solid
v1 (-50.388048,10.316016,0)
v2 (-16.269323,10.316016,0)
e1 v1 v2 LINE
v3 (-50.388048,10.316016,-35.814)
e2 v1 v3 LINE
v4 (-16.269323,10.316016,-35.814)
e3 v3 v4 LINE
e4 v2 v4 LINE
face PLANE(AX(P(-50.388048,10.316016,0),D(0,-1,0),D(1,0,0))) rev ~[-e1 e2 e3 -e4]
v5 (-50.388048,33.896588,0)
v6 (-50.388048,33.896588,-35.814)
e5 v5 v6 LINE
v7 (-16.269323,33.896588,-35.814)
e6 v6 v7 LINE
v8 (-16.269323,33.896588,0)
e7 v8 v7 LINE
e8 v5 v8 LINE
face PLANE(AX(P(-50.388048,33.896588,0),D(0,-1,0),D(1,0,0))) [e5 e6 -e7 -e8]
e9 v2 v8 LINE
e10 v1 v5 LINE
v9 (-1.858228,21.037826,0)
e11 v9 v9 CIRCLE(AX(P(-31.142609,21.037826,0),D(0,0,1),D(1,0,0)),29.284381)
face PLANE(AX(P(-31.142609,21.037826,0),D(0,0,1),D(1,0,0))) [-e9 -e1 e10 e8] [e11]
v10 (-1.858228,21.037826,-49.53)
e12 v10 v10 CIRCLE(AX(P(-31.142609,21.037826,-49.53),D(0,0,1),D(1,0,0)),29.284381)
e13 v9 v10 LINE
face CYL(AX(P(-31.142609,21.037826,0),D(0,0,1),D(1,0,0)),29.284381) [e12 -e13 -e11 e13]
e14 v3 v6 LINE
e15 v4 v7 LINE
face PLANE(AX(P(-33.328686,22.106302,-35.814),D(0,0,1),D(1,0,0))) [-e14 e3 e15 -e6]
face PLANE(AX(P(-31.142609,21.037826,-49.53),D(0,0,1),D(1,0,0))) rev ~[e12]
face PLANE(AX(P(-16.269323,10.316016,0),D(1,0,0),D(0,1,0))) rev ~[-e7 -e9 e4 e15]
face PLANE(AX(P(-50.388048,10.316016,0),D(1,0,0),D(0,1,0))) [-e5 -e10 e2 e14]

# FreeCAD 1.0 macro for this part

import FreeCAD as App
import Part
import Sketcher

V = App.Vector
Q = App.Units.Quantity


def add_polygon(sketch, points):
    """Adds a closed chain of lines whose ends are joined by coincident constraints."""
    first, n = sketch.GeometryCount, len(points)
    for a, b in zip(points, points[1:] + points[:1]):
        sketch.addGeometry(Part.LineSegment(App.Vector(*a, 0), App.Vector(*b, 0)), False)
    for i in range(n):
        sketch.addConstraint(Sketcher.Constraint("Coincident", first + i, 2, first + (i + 1) % n, 1))

doc = App.newDocument("Part")
params = doc.addObject("Spreadsheet::Sheet", "Params")
for row, (alias, value) in enumerate([
    ("pad1_length", "1.95 in"),
    ("pocket1_length", "1.41 in"),
], start=1):
    params.set(f"A{row}", alias)
    params.set(f"B{row}", "=" + value)
    params.setAlias(f"B{row}", alias)

body = doc.addObject("PartDesign::Body", "Body")

sketch1 = body.newObject("Sketcher::SketchObject", "Sketch")
sketch1.AttachmentSupport = (doc.getObject("XY_Plane"), [""])
sketch1.MapMode = "FlatFace"
sketch1.addGeometry(Part.Circle(V(-31.142609, 21.037826, 0), V(0, 0, 1), 29.284381), False)
sketch1.addConstraint([
    Sketcher.Constraint("Diameter", 0, Q("58.568762 mm")),
    Sketcher.Constraint("DistanceX", 0, 3, -1, 1, Q("31.142609 mm")),
    Sketcher.Constraint("DistanceY", -1, 1, 0, 3, Q("21.037826 mm")),
])
pad1 = body.newObject("PartDesign::Pad", "Pad")
pad1.Profile = sketch1
pad1.setExpression("Length", "Params.pad1_length")
pad1.Reversed = True

sketch2 = body.newObject("Sketcher::SketchObject", "Sketch001")
sketch2.AttachmentSupport = (doc.getObject("XY_Plane"), [""])
sketch2.MapMode = "FlatFace"
add_polygon(sketch2, [(-50.388048, 33.896588), (-50.388048, 10.316016), (-16.269323, 10.316016), (-16.269323, 33.896588)])
sketch2.addConstraint([
    Sketcher.Constraint("Vertical", 0),
    Sketcher.Constraint("Horizontal", 1),
    Sketcher.Constraint("Vertical", 2),
    Sketcher.Constraint("Horizontal", 3),
    Sketcher.Constraint("DistanceY", 0, 2, 0, 1, Q("23.580571 mm")),
    Sketcher.Constraint("DistanceX", 1, 1, 1, 2, Q("34.118725 mm")),
    Sketcher.Constraint("DistanceX", 0, 2, -1, 1, Q("50.388048 mm")),
    Sketcher.Constraint("DistanceY", -1, 1, 0, 2, Q("10.316016 mm")),
])
pocket1 = body.newObject("PartDesign::Pocket", "Pocket")
pocket1.Profile = sketch2
pocket1.setExpression("Length", "Params.pocket1_length")

doc.recompute()
